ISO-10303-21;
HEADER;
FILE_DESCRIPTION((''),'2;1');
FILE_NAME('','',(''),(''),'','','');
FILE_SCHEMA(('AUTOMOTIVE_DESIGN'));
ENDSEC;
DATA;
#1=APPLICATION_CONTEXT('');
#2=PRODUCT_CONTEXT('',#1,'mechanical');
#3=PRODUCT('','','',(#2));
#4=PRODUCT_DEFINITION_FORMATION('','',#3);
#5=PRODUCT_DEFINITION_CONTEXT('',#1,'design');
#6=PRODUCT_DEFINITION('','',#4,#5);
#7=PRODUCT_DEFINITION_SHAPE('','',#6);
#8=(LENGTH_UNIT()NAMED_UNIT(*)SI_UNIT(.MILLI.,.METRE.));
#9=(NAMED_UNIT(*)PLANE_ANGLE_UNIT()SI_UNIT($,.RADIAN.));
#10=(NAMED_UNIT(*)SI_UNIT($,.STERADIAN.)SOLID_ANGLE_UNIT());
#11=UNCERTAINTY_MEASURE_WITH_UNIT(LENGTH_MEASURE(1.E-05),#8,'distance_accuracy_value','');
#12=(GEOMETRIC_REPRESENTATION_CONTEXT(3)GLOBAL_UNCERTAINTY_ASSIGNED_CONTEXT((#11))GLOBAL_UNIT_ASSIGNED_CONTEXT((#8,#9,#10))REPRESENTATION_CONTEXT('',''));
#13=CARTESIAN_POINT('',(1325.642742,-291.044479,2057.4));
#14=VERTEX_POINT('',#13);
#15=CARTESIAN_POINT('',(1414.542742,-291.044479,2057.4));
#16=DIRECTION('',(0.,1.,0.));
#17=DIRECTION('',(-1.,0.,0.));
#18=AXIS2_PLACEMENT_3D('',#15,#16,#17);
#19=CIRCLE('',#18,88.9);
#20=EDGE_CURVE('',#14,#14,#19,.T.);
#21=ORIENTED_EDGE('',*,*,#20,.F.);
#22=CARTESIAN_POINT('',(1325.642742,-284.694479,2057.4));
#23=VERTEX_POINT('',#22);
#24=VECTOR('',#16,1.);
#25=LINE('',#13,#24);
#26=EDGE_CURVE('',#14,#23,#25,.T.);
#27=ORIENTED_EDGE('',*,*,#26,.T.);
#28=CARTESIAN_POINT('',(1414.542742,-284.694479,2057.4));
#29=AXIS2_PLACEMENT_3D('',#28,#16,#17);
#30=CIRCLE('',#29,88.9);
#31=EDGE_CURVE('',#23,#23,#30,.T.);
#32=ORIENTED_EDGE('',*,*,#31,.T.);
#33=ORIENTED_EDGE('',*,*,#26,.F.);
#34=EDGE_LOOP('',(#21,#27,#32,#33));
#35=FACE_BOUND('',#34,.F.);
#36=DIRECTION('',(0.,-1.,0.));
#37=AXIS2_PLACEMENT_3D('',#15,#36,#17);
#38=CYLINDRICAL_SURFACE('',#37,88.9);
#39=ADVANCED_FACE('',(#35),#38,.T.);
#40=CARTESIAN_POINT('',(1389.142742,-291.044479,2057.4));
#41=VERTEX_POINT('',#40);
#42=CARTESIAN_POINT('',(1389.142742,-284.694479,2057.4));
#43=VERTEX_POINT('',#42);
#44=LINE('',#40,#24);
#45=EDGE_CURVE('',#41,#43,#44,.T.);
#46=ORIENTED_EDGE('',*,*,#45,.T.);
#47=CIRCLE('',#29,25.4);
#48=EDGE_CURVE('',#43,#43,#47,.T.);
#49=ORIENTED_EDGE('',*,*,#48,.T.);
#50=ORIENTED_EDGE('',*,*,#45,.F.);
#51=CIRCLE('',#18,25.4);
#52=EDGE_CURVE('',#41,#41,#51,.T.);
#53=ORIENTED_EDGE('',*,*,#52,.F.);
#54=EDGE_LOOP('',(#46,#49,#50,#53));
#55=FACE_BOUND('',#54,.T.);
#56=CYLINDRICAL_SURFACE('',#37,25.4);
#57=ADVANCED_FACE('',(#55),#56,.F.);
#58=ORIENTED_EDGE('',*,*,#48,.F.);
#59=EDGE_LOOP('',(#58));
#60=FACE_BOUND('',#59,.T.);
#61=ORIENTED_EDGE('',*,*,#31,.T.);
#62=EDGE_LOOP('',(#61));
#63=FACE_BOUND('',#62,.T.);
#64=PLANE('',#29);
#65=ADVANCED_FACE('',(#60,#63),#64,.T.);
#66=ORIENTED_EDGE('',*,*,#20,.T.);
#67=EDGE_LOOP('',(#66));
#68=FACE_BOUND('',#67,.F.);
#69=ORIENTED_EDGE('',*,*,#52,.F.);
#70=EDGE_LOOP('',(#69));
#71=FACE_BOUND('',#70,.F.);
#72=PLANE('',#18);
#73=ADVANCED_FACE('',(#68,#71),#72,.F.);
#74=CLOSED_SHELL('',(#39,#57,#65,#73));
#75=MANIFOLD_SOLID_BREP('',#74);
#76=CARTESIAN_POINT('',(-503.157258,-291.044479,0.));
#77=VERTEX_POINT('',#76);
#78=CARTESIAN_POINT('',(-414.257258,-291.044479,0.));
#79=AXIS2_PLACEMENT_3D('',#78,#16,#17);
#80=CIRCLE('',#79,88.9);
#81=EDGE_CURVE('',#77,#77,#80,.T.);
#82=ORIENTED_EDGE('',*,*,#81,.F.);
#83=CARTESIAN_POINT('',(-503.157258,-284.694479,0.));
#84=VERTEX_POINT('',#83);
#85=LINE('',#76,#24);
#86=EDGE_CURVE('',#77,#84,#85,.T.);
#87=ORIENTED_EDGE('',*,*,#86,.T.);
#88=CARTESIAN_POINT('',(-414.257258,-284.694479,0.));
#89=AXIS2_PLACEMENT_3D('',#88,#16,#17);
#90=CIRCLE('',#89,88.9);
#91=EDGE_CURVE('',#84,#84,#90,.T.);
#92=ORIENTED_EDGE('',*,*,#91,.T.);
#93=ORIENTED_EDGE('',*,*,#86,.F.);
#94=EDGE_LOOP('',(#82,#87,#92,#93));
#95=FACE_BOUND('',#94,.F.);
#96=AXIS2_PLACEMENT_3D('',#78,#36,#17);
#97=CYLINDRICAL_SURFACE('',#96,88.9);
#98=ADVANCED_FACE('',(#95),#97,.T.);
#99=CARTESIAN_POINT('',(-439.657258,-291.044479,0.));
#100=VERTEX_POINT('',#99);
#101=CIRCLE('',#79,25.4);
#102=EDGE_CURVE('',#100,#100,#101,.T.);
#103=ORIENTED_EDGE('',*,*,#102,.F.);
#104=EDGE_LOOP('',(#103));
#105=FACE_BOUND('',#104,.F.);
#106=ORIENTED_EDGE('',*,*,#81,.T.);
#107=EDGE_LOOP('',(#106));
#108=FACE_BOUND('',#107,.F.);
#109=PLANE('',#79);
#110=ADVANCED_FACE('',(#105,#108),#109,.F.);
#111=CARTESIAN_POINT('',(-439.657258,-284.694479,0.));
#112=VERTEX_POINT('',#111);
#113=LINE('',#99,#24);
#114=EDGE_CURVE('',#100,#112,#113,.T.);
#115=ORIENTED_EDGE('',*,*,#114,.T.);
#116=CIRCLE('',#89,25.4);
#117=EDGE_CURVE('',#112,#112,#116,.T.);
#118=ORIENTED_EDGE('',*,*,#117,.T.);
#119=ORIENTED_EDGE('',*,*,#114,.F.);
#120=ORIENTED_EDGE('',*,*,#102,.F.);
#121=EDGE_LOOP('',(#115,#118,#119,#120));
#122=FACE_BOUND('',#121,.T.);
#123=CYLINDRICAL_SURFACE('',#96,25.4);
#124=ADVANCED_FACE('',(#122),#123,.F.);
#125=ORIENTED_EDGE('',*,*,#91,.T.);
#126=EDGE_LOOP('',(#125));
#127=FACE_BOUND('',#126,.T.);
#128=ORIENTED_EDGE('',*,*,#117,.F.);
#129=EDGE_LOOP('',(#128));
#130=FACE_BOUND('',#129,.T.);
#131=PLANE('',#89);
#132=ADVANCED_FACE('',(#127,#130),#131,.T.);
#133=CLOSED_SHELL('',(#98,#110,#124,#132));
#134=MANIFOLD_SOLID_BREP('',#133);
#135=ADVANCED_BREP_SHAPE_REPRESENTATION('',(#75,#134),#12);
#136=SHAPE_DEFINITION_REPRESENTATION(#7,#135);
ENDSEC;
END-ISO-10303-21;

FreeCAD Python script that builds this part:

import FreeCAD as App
import Part
import Sketcher
Q = App.Units.Quantity

doc = App.newDocument("Part")
body = doc.addObject("PartDesign::Body", "Body")

# Sketch on XZ plane
sketch1 = body.newObject("Sketcher::SketchObject", "Sketch")
sketch1.AttachmentSupport = (doc.getObject("XZ_Plane"), [""])
sketch1.MapMode = "FlatFace"
sketch1.AttachmentOffset = App.Placement(App.Vector(0, 0, 291.044479), App.Rotation())
sketch1.addGeometry([
    Part.Circle(App.Vector(1414.542742, 2057.4, 0), App.Vector(0, 0, 1), 88.9),
    Part.Circle(App.Vector(1414.542742, 2057.4, 0), App.Vector(0, 0, 1), 25.4),
], False)
sketch1.addConstraint([
    Sketcher.Constraint("Coincident", 1, 3, 0, 3),
    Sketcher.Constraint("Diameter", 0, Q("7 in")),
    Sketcher.Constraint("Diameter", 1, Q("2 in")),
    Sketcher.Constraint("DistanceY", -1, 1, 0, 3, Q("81 in")),
    Sketcher.Constraint("DistanceX", -1, 1, 0, 3, 1414.542742),
])
pad1 = body.newObject("PartDesign::Pad", "Pad")
pad1.Profile = sketch1
pad1.Length = Q("0.25 in")
pad1.Reversed = True
body2 = doc.addObject("PartDesign::Body", "Body001")

# Sketch on XZ plane
sketch2 = body2.newObject("Sketcher::SketchObject", "Sketch001")
sketch2.AttachmentSupport = (doc.getObject("XZ_Plane001"), [""])
sketch2.MapMode = "FlatFace"
sketch2.AttachmentOffset = App.Placement(App.Vector(0, 0, 291.044479), App.Rotation())
sketch2.addGeometry([
    Part.Circle(App.Vector(-414.257258, 0, 0), App.Vector(0, 0, 1), 88.9),
    Part.Circle(App.Vector(-414.257258, 0, 0), App.Vector(0, 0, 1), 25.4),
], False)
sketch2.addConstraint([
    Sketcher.Constraint("Coincident", 1, 3, 0, 3),
    Sketcher.Constraint("PointOnObject", 0, 3, -1),
    Sketcher.Constraint("Diameter", 0, Q("7 in")),
    Sketcher.Constraint("Diameter", 1, Q("2 in")),
    Sketcher.Constraint("DistanceX", 0, 3, -1, 1, 414.257258),
])
pad2 = body2.newObject("PartDesign::Pad", "Pad001")
pad2.Profile = sketch2
pad2.Length = Q("0.25 in")
pad2.Reversed = True

doc.recompute()
